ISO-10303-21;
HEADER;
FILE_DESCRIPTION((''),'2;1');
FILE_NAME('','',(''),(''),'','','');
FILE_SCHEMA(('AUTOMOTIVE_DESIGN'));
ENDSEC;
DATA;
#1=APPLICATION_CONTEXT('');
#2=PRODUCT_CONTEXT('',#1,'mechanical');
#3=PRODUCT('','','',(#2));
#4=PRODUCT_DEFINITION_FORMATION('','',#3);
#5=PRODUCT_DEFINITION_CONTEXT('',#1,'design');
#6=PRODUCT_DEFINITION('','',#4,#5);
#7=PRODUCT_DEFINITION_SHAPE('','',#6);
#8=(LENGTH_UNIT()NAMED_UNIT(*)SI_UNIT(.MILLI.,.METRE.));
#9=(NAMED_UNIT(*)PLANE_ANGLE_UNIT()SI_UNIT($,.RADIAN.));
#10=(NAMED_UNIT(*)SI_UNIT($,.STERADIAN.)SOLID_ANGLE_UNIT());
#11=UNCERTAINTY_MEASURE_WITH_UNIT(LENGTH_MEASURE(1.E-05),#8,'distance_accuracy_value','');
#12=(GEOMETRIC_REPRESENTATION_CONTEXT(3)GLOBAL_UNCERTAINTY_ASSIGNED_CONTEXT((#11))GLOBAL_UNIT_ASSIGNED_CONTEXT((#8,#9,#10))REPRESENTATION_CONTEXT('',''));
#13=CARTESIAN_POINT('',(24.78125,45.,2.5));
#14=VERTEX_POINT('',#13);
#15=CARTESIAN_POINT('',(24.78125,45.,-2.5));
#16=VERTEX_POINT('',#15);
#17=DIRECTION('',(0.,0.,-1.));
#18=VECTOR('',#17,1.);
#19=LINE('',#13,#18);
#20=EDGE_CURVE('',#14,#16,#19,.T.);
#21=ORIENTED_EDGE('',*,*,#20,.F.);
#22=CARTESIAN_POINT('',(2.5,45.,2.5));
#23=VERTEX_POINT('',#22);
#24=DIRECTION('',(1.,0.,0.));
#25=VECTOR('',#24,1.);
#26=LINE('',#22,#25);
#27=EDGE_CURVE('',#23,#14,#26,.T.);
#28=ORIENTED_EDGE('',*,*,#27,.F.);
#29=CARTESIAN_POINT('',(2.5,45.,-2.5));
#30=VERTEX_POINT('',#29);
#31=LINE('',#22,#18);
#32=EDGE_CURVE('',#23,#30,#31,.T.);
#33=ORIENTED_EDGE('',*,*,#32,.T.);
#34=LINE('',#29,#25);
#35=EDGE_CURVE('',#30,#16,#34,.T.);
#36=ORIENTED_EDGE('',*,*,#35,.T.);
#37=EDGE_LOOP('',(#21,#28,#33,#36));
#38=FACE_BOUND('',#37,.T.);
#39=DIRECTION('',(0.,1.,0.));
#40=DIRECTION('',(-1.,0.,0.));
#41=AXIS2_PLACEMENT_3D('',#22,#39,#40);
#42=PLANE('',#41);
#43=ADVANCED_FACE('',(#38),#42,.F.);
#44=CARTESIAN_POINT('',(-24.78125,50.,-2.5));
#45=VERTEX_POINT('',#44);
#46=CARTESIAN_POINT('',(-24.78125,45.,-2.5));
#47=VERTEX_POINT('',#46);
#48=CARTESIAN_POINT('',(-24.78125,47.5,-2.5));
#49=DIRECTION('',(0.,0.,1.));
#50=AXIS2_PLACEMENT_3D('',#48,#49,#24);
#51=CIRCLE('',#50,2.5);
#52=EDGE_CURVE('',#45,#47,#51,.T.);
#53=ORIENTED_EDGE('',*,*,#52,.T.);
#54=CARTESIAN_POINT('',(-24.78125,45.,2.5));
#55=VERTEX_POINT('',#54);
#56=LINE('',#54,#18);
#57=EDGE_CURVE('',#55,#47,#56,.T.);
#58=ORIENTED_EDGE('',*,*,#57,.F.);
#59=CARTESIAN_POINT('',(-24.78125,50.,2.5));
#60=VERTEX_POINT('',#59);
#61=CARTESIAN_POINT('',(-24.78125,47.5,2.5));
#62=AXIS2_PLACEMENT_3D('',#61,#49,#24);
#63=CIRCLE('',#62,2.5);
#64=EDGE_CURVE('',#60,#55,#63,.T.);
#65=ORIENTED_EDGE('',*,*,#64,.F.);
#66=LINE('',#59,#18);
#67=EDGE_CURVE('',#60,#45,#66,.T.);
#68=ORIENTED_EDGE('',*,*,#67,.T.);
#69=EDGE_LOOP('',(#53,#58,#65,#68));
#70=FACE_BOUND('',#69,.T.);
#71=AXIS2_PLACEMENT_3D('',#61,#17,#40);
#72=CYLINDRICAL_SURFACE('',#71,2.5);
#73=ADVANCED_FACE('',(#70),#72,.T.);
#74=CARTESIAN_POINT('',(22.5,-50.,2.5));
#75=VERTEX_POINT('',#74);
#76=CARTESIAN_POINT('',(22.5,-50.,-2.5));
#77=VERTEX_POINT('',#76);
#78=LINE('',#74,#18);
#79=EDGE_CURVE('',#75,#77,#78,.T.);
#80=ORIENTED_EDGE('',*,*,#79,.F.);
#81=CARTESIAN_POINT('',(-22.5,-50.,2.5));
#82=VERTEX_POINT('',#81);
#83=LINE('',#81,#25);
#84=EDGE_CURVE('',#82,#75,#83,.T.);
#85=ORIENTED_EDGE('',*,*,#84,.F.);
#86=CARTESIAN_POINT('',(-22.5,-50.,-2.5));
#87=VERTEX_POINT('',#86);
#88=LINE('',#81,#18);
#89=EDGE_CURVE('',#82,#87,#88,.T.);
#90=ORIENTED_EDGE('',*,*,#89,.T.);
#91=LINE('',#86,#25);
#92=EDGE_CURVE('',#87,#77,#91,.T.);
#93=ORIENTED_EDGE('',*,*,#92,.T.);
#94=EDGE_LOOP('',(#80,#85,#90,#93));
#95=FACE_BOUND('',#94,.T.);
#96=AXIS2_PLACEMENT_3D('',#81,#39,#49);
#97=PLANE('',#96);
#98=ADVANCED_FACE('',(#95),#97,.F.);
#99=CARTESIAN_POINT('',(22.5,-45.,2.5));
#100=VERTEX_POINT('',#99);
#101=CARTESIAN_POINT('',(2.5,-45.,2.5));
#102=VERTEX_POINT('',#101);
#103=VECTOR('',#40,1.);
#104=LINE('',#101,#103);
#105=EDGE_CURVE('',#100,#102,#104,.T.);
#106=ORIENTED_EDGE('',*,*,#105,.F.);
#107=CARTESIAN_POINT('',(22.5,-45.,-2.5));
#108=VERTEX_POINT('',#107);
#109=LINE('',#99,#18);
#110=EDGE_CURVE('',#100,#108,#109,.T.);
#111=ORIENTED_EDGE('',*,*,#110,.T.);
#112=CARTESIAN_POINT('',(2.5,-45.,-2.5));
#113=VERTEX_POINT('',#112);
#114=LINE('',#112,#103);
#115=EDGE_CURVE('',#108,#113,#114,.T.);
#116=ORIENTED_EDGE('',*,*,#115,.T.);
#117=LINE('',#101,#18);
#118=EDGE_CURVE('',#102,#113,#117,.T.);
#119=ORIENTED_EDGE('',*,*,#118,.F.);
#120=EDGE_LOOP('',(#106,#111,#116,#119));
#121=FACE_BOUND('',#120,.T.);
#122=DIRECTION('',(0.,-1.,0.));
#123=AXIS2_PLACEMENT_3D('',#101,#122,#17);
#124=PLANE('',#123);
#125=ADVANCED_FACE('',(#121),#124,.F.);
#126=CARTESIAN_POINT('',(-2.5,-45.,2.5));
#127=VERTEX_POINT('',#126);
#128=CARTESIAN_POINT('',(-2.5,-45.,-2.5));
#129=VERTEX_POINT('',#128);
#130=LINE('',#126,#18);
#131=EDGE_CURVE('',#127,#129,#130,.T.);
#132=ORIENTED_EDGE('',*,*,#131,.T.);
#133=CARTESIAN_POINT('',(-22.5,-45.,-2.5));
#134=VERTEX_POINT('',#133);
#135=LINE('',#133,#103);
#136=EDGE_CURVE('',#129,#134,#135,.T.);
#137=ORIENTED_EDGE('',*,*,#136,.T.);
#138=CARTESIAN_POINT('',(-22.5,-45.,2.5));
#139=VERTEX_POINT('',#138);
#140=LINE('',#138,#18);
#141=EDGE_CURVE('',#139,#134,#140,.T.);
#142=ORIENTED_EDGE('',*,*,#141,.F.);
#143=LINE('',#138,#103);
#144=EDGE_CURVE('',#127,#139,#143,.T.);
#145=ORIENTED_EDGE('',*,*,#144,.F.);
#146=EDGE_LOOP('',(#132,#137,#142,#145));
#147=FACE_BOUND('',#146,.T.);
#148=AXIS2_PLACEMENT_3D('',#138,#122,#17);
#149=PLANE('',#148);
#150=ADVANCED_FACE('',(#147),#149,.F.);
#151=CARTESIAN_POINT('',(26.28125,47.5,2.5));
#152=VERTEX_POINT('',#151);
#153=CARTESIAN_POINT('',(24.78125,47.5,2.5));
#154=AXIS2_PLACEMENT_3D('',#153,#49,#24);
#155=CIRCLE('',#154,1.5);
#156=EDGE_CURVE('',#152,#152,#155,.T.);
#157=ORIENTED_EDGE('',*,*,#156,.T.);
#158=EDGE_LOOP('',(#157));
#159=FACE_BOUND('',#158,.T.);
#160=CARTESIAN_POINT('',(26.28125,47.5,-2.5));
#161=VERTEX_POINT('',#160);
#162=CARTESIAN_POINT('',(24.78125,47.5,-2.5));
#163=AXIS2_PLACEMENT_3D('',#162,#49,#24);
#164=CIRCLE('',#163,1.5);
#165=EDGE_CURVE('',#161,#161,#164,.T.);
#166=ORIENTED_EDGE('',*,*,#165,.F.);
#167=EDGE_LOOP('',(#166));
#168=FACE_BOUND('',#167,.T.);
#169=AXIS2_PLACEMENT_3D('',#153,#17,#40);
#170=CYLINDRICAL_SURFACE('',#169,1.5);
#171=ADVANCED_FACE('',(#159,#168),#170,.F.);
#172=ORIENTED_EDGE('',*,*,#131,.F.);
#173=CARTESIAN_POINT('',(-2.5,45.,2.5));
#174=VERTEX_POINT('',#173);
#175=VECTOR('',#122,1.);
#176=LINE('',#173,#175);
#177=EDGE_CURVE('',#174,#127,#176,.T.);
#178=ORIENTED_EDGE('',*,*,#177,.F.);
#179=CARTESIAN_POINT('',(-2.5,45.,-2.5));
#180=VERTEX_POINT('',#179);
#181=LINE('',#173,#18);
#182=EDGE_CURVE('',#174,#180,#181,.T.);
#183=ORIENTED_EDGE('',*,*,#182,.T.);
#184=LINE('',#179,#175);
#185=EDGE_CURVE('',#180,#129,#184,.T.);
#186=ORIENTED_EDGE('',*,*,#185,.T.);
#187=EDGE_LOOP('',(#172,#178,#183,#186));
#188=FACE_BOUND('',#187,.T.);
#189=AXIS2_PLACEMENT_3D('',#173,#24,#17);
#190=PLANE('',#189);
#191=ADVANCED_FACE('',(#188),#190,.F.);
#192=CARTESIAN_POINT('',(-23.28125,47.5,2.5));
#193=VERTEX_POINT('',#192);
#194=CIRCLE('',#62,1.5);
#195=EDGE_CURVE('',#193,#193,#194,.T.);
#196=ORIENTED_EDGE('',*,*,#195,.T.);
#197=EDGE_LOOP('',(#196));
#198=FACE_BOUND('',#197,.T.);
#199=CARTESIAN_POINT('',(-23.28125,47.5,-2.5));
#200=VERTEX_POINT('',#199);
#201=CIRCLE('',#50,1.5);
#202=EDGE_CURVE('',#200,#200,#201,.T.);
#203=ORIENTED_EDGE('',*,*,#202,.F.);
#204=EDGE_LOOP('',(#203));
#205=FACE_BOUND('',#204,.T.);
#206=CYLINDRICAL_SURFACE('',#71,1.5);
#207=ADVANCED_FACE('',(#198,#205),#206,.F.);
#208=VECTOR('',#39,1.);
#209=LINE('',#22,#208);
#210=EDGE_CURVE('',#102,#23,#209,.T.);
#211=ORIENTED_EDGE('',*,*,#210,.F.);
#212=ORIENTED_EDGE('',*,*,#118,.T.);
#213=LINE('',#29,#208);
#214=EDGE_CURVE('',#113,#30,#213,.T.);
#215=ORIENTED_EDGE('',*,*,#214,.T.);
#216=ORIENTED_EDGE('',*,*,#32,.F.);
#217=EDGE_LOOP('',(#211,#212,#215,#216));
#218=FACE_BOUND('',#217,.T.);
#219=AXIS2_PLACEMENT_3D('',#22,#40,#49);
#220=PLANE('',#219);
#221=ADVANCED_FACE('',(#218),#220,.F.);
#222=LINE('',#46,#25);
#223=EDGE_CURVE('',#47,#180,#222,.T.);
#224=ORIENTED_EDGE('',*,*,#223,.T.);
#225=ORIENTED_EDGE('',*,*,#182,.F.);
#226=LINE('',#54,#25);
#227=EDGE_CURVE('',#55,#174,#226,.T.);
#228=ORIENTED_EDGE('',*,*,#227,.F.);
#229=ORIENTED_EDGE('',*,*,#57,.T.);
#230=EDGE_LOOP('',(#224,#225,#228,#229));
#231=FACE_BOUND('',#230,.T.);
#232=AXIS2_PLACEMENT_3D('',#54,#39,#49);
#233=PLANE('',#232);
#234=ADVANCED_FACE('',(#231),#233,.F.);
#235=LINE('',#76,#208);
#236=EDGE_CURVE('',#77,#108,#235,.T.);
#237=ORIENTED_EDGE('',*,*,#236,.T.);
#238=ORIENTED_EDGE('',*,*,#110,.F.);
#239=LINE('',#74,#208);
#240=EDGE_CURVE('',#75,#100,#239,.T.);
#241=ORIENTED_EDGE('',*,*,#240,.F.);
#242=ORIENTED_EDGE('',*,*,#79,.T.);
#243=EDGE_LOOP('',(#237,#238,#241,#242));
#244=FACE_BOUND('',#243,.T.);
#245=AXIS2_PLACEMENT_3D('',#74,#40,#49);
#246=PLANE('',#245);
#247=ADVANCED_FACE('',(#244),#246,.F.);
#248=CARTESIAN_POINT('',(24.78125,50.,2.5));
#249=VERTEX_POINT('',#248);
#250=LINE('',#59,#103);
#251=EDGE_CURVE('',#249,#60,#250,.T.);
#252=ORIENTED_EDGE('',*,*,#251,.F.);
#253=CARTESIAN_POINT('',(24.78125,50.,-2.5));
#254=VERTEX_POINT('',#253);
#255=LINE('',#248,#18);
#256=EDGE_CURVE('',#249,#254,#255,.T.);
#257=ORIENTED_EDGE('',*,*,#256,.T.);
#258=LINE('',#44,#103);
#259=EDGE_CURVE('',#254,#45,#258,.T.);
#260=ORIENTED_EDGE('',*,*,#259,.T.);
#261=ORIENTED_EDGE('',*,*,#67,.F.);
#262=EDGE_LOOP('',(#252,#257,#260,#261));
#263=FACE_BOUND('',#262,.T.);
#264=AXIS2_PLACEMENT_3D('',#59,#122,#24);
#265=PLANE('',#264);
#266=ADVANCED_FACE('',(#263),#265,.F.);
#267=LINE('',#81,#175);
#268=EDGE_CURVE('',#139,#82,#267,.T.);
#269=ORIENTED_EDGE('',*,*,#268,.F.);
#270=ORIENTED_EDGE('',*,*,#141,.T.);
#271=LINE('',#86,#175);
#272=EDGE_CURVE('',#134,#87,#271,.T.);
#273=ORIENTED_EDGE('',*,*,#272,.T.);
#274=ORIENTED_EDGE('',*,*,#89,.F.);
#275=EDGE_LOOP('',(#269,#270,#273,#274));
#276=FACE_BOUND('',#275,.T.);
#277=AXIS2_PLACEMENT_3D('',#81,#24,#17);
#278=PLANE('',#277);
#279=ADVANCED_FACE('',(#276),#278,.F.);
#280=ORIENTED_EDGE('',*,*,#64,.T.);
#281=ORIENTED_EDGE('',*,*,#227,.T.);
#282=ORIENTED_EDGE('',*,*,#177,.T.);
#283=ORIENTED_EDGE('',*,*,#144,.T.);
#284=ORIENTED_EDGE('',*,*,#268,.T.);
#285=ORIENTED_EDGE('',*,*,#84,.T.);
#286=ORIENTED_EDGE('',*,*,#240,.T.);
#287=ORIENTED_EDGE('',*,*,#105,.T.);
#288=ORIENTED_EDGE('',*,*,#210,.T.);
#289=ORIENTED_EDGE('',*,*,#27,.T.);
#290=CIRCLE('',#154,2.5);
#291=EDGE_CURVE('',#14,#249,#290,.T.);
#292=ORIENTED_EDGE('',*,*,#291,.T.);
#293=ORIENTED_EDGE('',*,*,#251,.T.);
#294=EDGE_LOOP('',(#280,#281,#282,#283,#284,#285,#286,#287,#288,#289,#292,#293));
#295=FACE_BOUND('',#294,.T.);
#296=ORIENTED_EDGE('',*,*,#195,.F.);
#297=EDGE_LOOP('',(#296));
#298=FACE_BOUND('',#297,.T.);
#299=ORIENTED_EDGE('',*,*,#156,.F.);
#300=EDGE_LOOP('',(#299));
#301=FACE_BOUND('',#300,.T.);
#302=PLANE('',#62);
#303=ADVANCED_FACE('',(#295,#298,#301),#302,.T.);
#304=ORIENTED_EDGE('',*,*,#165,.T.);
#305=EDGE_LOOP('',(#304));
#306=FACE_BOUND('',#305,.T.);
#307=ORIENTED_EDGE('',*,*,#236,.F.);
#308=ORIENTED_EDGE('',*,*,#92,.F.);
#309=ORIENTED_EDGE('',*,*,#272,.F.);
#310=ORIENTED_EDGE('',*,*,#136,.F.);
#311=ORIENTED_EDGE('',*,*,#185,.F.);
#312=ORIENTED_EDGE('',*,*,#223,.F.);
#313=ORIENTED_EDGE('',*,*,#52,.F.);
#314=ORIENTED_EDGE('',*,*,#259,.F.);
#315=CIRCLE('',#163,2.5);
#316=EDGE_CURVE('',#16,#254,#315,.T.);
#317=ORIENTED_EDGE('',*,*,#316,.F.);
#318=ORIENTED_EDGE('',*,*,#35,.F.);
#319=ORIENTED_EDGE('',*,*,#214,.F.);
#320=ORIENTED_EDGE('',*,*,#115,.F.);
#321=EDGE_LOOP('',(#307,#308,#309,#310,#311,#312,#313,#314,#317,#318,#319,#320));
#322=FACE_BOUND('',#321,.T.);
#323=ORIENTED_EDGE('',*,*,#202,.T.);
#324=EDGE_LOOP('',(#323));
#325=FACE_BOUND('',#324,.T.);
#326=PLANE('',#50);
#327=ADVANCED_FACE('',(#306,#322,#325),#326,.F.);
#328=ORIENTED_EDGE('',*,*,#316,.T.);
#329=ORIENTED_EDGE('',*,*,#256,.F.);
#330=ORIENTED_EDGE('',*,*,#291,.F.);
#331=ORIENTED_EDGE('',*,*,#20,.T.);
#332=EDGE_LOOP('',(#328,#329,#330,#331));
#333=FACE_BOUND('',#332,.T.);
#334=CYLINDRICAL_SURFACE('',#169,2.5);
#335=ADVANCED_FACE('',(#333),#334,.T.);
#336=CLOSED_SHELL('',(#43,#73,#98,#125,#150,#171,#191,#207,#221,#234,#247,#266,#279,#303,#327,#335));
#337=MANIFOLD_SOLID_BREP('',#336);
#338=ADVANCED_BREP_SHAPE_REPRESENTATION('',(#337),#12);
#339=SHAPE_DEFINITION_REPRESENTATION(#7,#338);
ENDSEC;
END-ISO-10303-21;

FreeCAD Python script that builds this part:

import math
import FreeCAD as App
import Part
import Sketcher

V = App.Vector
Q = App.Units.Quantity

doc = App.newDocument("Part")
params = doc.addObject("Spreadsheet::Sheet", "Params")
for row, (alias, value) in enumerate([
    ("sketch1_diameter", "3 mm"),
    ("sketch1_radius", "2.5 mm"),
    ("sketch1_width", "20 mm"),
    ("sketch1_width2", "45 mm"),
    ("sketch1_height", "90 mm"),
    ("pad1_length", "5 mm"),
], start=1):
    params.set(f"A{row}", alias)
    params.set(f"B{row}", "=" + value)
    params.setAlias(f"B{row}", alias)

body = doc.addObject("PartDesign::Body", "Body")

# Sketch on XY plane
sketch1 = doc.addObject("Sketcher::SketchObject", "Sketch")
body.addObject(sketch1)
sketch1.AttachmentSupport = (doc.XY_Plane, [""])
sketch1.MapMode = "FlatFace"
sketch1.addGeometry(Part.LineSegment(V(24.78125, 50, 0), V(-24.78125, 50, 0)), False)
sketch1.addGeometry(Part.ArcOfCircle(Part.Circle(V(-24.78125, 47.5, 0), V(0, 0, 1), 2.5), math.radians(90), math.radians(270)), False)
sketch1.addGeometry(Part.LineSegment(V(-24.78125, 45, 0), V(-2.5, 45, 0)), False)
sketch1.addGeometry(Part.LineSegment(V(-2.5, 45, 0), V(-2.5, -45, 0)), False)
sketch1.addGeometry(Part.LineSegment(V(-2.5, -45, 0), V(-22.5, -45, 0)), False)
sketch1.addGeometry(Part.LineSegment(V(-22.5, -45, 0), V(-22.5, -50, 0)), False)
sketch1.addGeometry(Part.LineSegment(V(-22.5, -50, 0), V(22.5, -50, 0)), False)
sketch1.addGeometry(Part.LineSegment(V(22.5, -50, 0), V(22.5, -45, 0)), False)
sketch1.addGeometry(Part.LineSegment(V(22.5, -45, 0), V(2.5, -45, 0)), False)
sketch1.addGeometry(Part.LineSegment(V(2.5, -45, 0), V(2.5, 45, 0)), False)
sketch1.addGeometry(Part.LineSegment(V(2.5, 45, 0), V(24.78125, 45, 0)), False)
sketch1.addGeometry(Part.ArcOfCircle(Part.Circle(V(24.78125, 47.5, 0), V(0, 0, 1), 2.5), math.radians(-90), math.radians(90)), False)
sketch1.addGeometry(Part.Circle(V(24.78125, 47.5, 0), V(0, 0, 1), 1.5), False)
sketch1.addGeometry(Part.Circle(V(-24.78125, 47.5, 0), V(0, 0, 1), 1.5), False)
sketch1.addConstraint(Sketcher.Constraint("Tangent", 0, 2, 1, 1))
sketch1.addConstraint(Sketcher.Constraint("Tangent", 1, 2, 2, 1))
sketch1.addConstraint(Sketcher.Constraint("Coincident", 2, 2, 3, 1))
sketch1.addConstraint(Sketcher.Constraint("Coincident", 3, 2, 4, 1))
sketch1.addConstraint(Sketcher.Constraint("Coincident", 4, 2, 5, 1))
sketch1.addConstraint(Sketcher.Constraint("Coincident", 5, 2, 6, 1))
sketch1.addConstraint(Sketcher.Constraint("Coincident", 6, 2, 7, 1))
sketch1.addConstraint(Sketcher.Constraint("Coincident", 7, 2, 8, 1))
sketch1.addConstraint(Sketcher.Constraint("Coincident", 8, 2, 9, 1))
sketch1.addConstraint(Sketcher.Constraint("Coincident", 9, 2, 10, 1))
sketch1.addConstraint(Sketcher.Constraint("Tangent", 10, 2, 11, 1))
sketch1.addConstraint(Sketcher.Constraint("Tangent", 11, 2, 0, 1))
sketch1.addConstraint(Sketcher.Constraint("Horizontal", 0))
sketch1.addConstraint(Sketcher.Constraint("Horizontal", 2))
sketch1.addConstraint(Sketcher.Constraint("Vertical", 3))
sketch1.addConstraint(Sketcher.Constraint("Horizontal", 4))
sketch1.addConstraint(Sketcher.Constraint("Vertical", 5))
sketch1.addConstraint(Sketcher.Constraint("Horizontal", 6))
sketch1.addConstraint(Sketcher.Constraint("Vertical", 7))
sketch1.addConstraint(Sketcher.Constraint("Horizontal", 8))
sketch1.addConstraint(Sketcher.Constraint("Vertical", 9))
sketch1.addConstraint(Sketcher.Constraint("Horizontal", 10))
sketch1.addConstraint(Sketcher.Constraint("Coincident", 12, 3, 11, 3))
sketch1.addConstraint(Sketcher.Constraint("Coincident", 13, 3, 1, 3))
sketch1.addConstraint(Sketcher.Constraint("Equal", 1, 11))
sketch1.addConstraint(Sketcher.Constraint("Equal", 12, 13))
sketch1.addConstraint(Sketcher.Constraint("Symmetric", 2, 2, 8, 2, -1, 1))
sketch1.addConstraint(Sketcher.Constraint("Symmetric", 4, 2, 7, 2, -2))
sketch1.addConstraint(Sketcher.Constraint("Equal", 2, 10))
sketch1.addConstraint(Sketcher.Constraint("Diameter", 12, Q("3 mm")))
sketch1.addConstraint(Sketcher.Constraint("Radius", 1, Q("2.5 mm")))
sketch1.addConstraint(Sketcher.Constraint("DistanceX", 4, 2, 4, 1, Q("20 mm")))
sketch1.addConstraint(Sketcher.Constraint("DistanceX", 6, 1, 6, 2, Q("45 mm")))
sketch1.addConstraint(Sketcher.Constraint("DistanceY", 3, 2, 3, 1, Q("90 mm")))
sketch1.addConstraint(Sketcher.Constraint("DistanceY", 5, 2, 5, 1, Q("5 mm")))
sketch1.addConstraint(Sketcher.Constraint("DistanceX", 0, 2, 0, 1, Q("49.5625 mm")))
sketch1.setExpression("Constraints[29]", "Params.sketch1_diameter")
sketch1.setExpression("Constraints[30]", "Params.sketch1_radius")
sketch1.setExpression("Constraints[31]", "Params.sketch1_width")
sketch1.setExpression("Constraints[32]", "Params.sketch1_width2")
sketch1.setExpression("Constraints[33]", "Params.sketch1_height")
pad1 = doc.addObject("PartDesign::Pad", "Pad")
body.addObject(pad1)
pad1.Profile = sketch1
pad1.setExpression("Length", "Params.pad1_length")
pad1.Midplane = True

doc.recompute()
